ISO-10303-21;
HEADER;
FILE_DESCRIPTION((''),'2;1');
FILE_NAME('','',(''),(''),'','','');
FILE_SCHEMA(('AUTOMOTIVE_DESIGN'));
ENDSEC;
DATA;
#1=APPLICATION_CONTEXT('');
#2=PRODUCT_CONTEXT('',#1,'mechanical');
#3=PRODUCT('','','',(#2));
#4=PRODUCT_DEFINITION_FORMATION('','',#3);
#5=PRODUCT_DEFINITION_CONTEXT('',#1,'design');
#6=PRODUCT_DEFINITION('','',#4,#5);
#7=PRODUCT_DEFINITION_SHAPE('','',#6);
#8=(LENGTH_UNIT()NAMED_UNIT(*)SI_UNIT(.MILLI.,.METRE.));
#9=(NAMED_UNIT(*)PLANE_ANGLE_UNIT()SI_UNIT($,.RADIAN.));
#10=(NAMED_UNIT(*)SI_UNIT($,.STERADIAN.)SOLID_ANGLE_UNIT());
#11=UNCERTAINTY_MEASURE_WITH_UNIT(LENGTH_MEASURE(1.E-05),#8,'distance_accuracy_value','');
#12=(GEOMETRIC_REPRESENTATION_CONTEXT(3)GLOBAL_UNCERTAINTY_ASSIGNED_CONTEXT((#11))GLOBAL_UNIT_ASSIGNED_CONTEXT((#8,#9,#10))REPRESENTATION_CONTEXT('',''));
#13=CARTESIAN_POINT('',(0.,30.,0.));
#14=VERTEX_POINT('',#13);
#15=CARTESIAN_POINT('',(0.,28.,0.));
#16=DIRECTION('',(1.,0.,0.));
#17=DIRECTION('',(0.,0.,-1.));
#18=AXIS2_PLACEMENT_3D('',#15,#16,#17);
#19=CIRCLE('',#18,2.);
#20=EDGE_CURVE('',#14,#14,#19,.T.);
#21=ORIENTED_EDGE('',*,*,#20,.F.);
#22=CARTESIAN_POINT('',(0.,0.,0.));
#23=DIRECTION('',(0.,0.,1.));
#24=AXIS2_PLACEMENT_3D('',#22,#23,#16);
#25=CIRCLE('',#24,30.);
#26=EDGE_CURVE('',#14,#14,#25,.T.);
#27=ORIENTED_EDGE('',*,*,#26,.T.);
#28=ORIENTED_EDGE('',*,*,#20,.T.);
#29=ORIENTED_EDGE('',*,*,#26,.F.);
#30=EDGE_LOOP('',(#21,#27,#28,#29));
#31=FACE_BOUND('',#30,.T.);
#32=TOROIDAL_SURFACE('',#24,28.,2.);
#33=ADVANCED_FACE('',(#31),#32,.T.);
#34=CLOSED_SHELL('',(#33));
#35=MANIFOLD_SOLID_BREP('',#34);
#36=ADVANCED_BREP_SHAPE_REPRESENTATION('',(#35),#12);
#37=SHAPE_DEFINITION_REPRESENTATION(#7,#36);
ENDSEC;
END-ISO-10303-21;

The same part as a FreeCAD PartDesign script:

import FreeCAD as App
import Part
import Sketcher

doc = App.newDocument("Part")
params = doc.addObject("Spreadsheet::Sheet", "Params")
for row, (alias, value) in enumerate([
    ("sketch1_diameter", "4 mm"),
    ("sketch2_diameter", "56 mm"),
], start=1):
    params.set(f"A{row}", alias)
    params.set(f"B{row}", "=" + value)
    params.setAlias(f"B{row}", alias)

body = doc.addObject("PartDesign::Body", "Body")

# Sketch on YZ plane
sketch1 = doc.addObject("Sketcher::SketchObject", "Sketch")
body.addObject(sketch1)
sketch1.AttachmentSupport = (doc.YZ_Plane, [""])
sketch1.MapMode = "FlatFace"
sketch1.addGeometry(Part.Circle(App.Vector(28, 0, 0), App.Vector(0, 0, 1), 2), False)
sketch1.addConstraint(Sketcher.Constraint("PointOnObject", 0, 3, -1))
sketch1.addConstraint(Sketcher.Constraint("Diameter", 0, 4.0))
sketch1.addConstraint(Sketcher.Constraint("DistanceX", -1, 1, 0, 3, 28.0))
sketch1.setExpression("Constraints[1]", "Params.sketch1_diameter")

# Sketch on XY plane
sketch2 = doc.addObject("Sketcher::SketchObject", "Sketch001")
body.addObject(sketch2)
sketch2.AttachmentSupport = (doc.XY_Plane, [""])
sketch2.MapMode = "FlatFace"
sketch2.addGeometry(Part.Circle(App.Vector(0, 0, 0), App.Vector(0, 0, 1), 28), False)
sketch2.addConstraint(Sketcher.Constraint("Coincident", 0, 3, -1, 1))
sketch2.addConstraint(Sketcher.Constraint("Diameter", 0, 56.0))
sketch2.setExpression("Constraints[1]", "Params.sketch2_diameter")
doc.recompute()

additivepipe = doc.addObject("PartDesign::AdditivePipe", "AdditivePipe")
body.addObject(additivepipe)
additivepipe.Profile = sketch1
additivepipe.Spine = (sketch2, ["Edge1"])

doc.recompute()
